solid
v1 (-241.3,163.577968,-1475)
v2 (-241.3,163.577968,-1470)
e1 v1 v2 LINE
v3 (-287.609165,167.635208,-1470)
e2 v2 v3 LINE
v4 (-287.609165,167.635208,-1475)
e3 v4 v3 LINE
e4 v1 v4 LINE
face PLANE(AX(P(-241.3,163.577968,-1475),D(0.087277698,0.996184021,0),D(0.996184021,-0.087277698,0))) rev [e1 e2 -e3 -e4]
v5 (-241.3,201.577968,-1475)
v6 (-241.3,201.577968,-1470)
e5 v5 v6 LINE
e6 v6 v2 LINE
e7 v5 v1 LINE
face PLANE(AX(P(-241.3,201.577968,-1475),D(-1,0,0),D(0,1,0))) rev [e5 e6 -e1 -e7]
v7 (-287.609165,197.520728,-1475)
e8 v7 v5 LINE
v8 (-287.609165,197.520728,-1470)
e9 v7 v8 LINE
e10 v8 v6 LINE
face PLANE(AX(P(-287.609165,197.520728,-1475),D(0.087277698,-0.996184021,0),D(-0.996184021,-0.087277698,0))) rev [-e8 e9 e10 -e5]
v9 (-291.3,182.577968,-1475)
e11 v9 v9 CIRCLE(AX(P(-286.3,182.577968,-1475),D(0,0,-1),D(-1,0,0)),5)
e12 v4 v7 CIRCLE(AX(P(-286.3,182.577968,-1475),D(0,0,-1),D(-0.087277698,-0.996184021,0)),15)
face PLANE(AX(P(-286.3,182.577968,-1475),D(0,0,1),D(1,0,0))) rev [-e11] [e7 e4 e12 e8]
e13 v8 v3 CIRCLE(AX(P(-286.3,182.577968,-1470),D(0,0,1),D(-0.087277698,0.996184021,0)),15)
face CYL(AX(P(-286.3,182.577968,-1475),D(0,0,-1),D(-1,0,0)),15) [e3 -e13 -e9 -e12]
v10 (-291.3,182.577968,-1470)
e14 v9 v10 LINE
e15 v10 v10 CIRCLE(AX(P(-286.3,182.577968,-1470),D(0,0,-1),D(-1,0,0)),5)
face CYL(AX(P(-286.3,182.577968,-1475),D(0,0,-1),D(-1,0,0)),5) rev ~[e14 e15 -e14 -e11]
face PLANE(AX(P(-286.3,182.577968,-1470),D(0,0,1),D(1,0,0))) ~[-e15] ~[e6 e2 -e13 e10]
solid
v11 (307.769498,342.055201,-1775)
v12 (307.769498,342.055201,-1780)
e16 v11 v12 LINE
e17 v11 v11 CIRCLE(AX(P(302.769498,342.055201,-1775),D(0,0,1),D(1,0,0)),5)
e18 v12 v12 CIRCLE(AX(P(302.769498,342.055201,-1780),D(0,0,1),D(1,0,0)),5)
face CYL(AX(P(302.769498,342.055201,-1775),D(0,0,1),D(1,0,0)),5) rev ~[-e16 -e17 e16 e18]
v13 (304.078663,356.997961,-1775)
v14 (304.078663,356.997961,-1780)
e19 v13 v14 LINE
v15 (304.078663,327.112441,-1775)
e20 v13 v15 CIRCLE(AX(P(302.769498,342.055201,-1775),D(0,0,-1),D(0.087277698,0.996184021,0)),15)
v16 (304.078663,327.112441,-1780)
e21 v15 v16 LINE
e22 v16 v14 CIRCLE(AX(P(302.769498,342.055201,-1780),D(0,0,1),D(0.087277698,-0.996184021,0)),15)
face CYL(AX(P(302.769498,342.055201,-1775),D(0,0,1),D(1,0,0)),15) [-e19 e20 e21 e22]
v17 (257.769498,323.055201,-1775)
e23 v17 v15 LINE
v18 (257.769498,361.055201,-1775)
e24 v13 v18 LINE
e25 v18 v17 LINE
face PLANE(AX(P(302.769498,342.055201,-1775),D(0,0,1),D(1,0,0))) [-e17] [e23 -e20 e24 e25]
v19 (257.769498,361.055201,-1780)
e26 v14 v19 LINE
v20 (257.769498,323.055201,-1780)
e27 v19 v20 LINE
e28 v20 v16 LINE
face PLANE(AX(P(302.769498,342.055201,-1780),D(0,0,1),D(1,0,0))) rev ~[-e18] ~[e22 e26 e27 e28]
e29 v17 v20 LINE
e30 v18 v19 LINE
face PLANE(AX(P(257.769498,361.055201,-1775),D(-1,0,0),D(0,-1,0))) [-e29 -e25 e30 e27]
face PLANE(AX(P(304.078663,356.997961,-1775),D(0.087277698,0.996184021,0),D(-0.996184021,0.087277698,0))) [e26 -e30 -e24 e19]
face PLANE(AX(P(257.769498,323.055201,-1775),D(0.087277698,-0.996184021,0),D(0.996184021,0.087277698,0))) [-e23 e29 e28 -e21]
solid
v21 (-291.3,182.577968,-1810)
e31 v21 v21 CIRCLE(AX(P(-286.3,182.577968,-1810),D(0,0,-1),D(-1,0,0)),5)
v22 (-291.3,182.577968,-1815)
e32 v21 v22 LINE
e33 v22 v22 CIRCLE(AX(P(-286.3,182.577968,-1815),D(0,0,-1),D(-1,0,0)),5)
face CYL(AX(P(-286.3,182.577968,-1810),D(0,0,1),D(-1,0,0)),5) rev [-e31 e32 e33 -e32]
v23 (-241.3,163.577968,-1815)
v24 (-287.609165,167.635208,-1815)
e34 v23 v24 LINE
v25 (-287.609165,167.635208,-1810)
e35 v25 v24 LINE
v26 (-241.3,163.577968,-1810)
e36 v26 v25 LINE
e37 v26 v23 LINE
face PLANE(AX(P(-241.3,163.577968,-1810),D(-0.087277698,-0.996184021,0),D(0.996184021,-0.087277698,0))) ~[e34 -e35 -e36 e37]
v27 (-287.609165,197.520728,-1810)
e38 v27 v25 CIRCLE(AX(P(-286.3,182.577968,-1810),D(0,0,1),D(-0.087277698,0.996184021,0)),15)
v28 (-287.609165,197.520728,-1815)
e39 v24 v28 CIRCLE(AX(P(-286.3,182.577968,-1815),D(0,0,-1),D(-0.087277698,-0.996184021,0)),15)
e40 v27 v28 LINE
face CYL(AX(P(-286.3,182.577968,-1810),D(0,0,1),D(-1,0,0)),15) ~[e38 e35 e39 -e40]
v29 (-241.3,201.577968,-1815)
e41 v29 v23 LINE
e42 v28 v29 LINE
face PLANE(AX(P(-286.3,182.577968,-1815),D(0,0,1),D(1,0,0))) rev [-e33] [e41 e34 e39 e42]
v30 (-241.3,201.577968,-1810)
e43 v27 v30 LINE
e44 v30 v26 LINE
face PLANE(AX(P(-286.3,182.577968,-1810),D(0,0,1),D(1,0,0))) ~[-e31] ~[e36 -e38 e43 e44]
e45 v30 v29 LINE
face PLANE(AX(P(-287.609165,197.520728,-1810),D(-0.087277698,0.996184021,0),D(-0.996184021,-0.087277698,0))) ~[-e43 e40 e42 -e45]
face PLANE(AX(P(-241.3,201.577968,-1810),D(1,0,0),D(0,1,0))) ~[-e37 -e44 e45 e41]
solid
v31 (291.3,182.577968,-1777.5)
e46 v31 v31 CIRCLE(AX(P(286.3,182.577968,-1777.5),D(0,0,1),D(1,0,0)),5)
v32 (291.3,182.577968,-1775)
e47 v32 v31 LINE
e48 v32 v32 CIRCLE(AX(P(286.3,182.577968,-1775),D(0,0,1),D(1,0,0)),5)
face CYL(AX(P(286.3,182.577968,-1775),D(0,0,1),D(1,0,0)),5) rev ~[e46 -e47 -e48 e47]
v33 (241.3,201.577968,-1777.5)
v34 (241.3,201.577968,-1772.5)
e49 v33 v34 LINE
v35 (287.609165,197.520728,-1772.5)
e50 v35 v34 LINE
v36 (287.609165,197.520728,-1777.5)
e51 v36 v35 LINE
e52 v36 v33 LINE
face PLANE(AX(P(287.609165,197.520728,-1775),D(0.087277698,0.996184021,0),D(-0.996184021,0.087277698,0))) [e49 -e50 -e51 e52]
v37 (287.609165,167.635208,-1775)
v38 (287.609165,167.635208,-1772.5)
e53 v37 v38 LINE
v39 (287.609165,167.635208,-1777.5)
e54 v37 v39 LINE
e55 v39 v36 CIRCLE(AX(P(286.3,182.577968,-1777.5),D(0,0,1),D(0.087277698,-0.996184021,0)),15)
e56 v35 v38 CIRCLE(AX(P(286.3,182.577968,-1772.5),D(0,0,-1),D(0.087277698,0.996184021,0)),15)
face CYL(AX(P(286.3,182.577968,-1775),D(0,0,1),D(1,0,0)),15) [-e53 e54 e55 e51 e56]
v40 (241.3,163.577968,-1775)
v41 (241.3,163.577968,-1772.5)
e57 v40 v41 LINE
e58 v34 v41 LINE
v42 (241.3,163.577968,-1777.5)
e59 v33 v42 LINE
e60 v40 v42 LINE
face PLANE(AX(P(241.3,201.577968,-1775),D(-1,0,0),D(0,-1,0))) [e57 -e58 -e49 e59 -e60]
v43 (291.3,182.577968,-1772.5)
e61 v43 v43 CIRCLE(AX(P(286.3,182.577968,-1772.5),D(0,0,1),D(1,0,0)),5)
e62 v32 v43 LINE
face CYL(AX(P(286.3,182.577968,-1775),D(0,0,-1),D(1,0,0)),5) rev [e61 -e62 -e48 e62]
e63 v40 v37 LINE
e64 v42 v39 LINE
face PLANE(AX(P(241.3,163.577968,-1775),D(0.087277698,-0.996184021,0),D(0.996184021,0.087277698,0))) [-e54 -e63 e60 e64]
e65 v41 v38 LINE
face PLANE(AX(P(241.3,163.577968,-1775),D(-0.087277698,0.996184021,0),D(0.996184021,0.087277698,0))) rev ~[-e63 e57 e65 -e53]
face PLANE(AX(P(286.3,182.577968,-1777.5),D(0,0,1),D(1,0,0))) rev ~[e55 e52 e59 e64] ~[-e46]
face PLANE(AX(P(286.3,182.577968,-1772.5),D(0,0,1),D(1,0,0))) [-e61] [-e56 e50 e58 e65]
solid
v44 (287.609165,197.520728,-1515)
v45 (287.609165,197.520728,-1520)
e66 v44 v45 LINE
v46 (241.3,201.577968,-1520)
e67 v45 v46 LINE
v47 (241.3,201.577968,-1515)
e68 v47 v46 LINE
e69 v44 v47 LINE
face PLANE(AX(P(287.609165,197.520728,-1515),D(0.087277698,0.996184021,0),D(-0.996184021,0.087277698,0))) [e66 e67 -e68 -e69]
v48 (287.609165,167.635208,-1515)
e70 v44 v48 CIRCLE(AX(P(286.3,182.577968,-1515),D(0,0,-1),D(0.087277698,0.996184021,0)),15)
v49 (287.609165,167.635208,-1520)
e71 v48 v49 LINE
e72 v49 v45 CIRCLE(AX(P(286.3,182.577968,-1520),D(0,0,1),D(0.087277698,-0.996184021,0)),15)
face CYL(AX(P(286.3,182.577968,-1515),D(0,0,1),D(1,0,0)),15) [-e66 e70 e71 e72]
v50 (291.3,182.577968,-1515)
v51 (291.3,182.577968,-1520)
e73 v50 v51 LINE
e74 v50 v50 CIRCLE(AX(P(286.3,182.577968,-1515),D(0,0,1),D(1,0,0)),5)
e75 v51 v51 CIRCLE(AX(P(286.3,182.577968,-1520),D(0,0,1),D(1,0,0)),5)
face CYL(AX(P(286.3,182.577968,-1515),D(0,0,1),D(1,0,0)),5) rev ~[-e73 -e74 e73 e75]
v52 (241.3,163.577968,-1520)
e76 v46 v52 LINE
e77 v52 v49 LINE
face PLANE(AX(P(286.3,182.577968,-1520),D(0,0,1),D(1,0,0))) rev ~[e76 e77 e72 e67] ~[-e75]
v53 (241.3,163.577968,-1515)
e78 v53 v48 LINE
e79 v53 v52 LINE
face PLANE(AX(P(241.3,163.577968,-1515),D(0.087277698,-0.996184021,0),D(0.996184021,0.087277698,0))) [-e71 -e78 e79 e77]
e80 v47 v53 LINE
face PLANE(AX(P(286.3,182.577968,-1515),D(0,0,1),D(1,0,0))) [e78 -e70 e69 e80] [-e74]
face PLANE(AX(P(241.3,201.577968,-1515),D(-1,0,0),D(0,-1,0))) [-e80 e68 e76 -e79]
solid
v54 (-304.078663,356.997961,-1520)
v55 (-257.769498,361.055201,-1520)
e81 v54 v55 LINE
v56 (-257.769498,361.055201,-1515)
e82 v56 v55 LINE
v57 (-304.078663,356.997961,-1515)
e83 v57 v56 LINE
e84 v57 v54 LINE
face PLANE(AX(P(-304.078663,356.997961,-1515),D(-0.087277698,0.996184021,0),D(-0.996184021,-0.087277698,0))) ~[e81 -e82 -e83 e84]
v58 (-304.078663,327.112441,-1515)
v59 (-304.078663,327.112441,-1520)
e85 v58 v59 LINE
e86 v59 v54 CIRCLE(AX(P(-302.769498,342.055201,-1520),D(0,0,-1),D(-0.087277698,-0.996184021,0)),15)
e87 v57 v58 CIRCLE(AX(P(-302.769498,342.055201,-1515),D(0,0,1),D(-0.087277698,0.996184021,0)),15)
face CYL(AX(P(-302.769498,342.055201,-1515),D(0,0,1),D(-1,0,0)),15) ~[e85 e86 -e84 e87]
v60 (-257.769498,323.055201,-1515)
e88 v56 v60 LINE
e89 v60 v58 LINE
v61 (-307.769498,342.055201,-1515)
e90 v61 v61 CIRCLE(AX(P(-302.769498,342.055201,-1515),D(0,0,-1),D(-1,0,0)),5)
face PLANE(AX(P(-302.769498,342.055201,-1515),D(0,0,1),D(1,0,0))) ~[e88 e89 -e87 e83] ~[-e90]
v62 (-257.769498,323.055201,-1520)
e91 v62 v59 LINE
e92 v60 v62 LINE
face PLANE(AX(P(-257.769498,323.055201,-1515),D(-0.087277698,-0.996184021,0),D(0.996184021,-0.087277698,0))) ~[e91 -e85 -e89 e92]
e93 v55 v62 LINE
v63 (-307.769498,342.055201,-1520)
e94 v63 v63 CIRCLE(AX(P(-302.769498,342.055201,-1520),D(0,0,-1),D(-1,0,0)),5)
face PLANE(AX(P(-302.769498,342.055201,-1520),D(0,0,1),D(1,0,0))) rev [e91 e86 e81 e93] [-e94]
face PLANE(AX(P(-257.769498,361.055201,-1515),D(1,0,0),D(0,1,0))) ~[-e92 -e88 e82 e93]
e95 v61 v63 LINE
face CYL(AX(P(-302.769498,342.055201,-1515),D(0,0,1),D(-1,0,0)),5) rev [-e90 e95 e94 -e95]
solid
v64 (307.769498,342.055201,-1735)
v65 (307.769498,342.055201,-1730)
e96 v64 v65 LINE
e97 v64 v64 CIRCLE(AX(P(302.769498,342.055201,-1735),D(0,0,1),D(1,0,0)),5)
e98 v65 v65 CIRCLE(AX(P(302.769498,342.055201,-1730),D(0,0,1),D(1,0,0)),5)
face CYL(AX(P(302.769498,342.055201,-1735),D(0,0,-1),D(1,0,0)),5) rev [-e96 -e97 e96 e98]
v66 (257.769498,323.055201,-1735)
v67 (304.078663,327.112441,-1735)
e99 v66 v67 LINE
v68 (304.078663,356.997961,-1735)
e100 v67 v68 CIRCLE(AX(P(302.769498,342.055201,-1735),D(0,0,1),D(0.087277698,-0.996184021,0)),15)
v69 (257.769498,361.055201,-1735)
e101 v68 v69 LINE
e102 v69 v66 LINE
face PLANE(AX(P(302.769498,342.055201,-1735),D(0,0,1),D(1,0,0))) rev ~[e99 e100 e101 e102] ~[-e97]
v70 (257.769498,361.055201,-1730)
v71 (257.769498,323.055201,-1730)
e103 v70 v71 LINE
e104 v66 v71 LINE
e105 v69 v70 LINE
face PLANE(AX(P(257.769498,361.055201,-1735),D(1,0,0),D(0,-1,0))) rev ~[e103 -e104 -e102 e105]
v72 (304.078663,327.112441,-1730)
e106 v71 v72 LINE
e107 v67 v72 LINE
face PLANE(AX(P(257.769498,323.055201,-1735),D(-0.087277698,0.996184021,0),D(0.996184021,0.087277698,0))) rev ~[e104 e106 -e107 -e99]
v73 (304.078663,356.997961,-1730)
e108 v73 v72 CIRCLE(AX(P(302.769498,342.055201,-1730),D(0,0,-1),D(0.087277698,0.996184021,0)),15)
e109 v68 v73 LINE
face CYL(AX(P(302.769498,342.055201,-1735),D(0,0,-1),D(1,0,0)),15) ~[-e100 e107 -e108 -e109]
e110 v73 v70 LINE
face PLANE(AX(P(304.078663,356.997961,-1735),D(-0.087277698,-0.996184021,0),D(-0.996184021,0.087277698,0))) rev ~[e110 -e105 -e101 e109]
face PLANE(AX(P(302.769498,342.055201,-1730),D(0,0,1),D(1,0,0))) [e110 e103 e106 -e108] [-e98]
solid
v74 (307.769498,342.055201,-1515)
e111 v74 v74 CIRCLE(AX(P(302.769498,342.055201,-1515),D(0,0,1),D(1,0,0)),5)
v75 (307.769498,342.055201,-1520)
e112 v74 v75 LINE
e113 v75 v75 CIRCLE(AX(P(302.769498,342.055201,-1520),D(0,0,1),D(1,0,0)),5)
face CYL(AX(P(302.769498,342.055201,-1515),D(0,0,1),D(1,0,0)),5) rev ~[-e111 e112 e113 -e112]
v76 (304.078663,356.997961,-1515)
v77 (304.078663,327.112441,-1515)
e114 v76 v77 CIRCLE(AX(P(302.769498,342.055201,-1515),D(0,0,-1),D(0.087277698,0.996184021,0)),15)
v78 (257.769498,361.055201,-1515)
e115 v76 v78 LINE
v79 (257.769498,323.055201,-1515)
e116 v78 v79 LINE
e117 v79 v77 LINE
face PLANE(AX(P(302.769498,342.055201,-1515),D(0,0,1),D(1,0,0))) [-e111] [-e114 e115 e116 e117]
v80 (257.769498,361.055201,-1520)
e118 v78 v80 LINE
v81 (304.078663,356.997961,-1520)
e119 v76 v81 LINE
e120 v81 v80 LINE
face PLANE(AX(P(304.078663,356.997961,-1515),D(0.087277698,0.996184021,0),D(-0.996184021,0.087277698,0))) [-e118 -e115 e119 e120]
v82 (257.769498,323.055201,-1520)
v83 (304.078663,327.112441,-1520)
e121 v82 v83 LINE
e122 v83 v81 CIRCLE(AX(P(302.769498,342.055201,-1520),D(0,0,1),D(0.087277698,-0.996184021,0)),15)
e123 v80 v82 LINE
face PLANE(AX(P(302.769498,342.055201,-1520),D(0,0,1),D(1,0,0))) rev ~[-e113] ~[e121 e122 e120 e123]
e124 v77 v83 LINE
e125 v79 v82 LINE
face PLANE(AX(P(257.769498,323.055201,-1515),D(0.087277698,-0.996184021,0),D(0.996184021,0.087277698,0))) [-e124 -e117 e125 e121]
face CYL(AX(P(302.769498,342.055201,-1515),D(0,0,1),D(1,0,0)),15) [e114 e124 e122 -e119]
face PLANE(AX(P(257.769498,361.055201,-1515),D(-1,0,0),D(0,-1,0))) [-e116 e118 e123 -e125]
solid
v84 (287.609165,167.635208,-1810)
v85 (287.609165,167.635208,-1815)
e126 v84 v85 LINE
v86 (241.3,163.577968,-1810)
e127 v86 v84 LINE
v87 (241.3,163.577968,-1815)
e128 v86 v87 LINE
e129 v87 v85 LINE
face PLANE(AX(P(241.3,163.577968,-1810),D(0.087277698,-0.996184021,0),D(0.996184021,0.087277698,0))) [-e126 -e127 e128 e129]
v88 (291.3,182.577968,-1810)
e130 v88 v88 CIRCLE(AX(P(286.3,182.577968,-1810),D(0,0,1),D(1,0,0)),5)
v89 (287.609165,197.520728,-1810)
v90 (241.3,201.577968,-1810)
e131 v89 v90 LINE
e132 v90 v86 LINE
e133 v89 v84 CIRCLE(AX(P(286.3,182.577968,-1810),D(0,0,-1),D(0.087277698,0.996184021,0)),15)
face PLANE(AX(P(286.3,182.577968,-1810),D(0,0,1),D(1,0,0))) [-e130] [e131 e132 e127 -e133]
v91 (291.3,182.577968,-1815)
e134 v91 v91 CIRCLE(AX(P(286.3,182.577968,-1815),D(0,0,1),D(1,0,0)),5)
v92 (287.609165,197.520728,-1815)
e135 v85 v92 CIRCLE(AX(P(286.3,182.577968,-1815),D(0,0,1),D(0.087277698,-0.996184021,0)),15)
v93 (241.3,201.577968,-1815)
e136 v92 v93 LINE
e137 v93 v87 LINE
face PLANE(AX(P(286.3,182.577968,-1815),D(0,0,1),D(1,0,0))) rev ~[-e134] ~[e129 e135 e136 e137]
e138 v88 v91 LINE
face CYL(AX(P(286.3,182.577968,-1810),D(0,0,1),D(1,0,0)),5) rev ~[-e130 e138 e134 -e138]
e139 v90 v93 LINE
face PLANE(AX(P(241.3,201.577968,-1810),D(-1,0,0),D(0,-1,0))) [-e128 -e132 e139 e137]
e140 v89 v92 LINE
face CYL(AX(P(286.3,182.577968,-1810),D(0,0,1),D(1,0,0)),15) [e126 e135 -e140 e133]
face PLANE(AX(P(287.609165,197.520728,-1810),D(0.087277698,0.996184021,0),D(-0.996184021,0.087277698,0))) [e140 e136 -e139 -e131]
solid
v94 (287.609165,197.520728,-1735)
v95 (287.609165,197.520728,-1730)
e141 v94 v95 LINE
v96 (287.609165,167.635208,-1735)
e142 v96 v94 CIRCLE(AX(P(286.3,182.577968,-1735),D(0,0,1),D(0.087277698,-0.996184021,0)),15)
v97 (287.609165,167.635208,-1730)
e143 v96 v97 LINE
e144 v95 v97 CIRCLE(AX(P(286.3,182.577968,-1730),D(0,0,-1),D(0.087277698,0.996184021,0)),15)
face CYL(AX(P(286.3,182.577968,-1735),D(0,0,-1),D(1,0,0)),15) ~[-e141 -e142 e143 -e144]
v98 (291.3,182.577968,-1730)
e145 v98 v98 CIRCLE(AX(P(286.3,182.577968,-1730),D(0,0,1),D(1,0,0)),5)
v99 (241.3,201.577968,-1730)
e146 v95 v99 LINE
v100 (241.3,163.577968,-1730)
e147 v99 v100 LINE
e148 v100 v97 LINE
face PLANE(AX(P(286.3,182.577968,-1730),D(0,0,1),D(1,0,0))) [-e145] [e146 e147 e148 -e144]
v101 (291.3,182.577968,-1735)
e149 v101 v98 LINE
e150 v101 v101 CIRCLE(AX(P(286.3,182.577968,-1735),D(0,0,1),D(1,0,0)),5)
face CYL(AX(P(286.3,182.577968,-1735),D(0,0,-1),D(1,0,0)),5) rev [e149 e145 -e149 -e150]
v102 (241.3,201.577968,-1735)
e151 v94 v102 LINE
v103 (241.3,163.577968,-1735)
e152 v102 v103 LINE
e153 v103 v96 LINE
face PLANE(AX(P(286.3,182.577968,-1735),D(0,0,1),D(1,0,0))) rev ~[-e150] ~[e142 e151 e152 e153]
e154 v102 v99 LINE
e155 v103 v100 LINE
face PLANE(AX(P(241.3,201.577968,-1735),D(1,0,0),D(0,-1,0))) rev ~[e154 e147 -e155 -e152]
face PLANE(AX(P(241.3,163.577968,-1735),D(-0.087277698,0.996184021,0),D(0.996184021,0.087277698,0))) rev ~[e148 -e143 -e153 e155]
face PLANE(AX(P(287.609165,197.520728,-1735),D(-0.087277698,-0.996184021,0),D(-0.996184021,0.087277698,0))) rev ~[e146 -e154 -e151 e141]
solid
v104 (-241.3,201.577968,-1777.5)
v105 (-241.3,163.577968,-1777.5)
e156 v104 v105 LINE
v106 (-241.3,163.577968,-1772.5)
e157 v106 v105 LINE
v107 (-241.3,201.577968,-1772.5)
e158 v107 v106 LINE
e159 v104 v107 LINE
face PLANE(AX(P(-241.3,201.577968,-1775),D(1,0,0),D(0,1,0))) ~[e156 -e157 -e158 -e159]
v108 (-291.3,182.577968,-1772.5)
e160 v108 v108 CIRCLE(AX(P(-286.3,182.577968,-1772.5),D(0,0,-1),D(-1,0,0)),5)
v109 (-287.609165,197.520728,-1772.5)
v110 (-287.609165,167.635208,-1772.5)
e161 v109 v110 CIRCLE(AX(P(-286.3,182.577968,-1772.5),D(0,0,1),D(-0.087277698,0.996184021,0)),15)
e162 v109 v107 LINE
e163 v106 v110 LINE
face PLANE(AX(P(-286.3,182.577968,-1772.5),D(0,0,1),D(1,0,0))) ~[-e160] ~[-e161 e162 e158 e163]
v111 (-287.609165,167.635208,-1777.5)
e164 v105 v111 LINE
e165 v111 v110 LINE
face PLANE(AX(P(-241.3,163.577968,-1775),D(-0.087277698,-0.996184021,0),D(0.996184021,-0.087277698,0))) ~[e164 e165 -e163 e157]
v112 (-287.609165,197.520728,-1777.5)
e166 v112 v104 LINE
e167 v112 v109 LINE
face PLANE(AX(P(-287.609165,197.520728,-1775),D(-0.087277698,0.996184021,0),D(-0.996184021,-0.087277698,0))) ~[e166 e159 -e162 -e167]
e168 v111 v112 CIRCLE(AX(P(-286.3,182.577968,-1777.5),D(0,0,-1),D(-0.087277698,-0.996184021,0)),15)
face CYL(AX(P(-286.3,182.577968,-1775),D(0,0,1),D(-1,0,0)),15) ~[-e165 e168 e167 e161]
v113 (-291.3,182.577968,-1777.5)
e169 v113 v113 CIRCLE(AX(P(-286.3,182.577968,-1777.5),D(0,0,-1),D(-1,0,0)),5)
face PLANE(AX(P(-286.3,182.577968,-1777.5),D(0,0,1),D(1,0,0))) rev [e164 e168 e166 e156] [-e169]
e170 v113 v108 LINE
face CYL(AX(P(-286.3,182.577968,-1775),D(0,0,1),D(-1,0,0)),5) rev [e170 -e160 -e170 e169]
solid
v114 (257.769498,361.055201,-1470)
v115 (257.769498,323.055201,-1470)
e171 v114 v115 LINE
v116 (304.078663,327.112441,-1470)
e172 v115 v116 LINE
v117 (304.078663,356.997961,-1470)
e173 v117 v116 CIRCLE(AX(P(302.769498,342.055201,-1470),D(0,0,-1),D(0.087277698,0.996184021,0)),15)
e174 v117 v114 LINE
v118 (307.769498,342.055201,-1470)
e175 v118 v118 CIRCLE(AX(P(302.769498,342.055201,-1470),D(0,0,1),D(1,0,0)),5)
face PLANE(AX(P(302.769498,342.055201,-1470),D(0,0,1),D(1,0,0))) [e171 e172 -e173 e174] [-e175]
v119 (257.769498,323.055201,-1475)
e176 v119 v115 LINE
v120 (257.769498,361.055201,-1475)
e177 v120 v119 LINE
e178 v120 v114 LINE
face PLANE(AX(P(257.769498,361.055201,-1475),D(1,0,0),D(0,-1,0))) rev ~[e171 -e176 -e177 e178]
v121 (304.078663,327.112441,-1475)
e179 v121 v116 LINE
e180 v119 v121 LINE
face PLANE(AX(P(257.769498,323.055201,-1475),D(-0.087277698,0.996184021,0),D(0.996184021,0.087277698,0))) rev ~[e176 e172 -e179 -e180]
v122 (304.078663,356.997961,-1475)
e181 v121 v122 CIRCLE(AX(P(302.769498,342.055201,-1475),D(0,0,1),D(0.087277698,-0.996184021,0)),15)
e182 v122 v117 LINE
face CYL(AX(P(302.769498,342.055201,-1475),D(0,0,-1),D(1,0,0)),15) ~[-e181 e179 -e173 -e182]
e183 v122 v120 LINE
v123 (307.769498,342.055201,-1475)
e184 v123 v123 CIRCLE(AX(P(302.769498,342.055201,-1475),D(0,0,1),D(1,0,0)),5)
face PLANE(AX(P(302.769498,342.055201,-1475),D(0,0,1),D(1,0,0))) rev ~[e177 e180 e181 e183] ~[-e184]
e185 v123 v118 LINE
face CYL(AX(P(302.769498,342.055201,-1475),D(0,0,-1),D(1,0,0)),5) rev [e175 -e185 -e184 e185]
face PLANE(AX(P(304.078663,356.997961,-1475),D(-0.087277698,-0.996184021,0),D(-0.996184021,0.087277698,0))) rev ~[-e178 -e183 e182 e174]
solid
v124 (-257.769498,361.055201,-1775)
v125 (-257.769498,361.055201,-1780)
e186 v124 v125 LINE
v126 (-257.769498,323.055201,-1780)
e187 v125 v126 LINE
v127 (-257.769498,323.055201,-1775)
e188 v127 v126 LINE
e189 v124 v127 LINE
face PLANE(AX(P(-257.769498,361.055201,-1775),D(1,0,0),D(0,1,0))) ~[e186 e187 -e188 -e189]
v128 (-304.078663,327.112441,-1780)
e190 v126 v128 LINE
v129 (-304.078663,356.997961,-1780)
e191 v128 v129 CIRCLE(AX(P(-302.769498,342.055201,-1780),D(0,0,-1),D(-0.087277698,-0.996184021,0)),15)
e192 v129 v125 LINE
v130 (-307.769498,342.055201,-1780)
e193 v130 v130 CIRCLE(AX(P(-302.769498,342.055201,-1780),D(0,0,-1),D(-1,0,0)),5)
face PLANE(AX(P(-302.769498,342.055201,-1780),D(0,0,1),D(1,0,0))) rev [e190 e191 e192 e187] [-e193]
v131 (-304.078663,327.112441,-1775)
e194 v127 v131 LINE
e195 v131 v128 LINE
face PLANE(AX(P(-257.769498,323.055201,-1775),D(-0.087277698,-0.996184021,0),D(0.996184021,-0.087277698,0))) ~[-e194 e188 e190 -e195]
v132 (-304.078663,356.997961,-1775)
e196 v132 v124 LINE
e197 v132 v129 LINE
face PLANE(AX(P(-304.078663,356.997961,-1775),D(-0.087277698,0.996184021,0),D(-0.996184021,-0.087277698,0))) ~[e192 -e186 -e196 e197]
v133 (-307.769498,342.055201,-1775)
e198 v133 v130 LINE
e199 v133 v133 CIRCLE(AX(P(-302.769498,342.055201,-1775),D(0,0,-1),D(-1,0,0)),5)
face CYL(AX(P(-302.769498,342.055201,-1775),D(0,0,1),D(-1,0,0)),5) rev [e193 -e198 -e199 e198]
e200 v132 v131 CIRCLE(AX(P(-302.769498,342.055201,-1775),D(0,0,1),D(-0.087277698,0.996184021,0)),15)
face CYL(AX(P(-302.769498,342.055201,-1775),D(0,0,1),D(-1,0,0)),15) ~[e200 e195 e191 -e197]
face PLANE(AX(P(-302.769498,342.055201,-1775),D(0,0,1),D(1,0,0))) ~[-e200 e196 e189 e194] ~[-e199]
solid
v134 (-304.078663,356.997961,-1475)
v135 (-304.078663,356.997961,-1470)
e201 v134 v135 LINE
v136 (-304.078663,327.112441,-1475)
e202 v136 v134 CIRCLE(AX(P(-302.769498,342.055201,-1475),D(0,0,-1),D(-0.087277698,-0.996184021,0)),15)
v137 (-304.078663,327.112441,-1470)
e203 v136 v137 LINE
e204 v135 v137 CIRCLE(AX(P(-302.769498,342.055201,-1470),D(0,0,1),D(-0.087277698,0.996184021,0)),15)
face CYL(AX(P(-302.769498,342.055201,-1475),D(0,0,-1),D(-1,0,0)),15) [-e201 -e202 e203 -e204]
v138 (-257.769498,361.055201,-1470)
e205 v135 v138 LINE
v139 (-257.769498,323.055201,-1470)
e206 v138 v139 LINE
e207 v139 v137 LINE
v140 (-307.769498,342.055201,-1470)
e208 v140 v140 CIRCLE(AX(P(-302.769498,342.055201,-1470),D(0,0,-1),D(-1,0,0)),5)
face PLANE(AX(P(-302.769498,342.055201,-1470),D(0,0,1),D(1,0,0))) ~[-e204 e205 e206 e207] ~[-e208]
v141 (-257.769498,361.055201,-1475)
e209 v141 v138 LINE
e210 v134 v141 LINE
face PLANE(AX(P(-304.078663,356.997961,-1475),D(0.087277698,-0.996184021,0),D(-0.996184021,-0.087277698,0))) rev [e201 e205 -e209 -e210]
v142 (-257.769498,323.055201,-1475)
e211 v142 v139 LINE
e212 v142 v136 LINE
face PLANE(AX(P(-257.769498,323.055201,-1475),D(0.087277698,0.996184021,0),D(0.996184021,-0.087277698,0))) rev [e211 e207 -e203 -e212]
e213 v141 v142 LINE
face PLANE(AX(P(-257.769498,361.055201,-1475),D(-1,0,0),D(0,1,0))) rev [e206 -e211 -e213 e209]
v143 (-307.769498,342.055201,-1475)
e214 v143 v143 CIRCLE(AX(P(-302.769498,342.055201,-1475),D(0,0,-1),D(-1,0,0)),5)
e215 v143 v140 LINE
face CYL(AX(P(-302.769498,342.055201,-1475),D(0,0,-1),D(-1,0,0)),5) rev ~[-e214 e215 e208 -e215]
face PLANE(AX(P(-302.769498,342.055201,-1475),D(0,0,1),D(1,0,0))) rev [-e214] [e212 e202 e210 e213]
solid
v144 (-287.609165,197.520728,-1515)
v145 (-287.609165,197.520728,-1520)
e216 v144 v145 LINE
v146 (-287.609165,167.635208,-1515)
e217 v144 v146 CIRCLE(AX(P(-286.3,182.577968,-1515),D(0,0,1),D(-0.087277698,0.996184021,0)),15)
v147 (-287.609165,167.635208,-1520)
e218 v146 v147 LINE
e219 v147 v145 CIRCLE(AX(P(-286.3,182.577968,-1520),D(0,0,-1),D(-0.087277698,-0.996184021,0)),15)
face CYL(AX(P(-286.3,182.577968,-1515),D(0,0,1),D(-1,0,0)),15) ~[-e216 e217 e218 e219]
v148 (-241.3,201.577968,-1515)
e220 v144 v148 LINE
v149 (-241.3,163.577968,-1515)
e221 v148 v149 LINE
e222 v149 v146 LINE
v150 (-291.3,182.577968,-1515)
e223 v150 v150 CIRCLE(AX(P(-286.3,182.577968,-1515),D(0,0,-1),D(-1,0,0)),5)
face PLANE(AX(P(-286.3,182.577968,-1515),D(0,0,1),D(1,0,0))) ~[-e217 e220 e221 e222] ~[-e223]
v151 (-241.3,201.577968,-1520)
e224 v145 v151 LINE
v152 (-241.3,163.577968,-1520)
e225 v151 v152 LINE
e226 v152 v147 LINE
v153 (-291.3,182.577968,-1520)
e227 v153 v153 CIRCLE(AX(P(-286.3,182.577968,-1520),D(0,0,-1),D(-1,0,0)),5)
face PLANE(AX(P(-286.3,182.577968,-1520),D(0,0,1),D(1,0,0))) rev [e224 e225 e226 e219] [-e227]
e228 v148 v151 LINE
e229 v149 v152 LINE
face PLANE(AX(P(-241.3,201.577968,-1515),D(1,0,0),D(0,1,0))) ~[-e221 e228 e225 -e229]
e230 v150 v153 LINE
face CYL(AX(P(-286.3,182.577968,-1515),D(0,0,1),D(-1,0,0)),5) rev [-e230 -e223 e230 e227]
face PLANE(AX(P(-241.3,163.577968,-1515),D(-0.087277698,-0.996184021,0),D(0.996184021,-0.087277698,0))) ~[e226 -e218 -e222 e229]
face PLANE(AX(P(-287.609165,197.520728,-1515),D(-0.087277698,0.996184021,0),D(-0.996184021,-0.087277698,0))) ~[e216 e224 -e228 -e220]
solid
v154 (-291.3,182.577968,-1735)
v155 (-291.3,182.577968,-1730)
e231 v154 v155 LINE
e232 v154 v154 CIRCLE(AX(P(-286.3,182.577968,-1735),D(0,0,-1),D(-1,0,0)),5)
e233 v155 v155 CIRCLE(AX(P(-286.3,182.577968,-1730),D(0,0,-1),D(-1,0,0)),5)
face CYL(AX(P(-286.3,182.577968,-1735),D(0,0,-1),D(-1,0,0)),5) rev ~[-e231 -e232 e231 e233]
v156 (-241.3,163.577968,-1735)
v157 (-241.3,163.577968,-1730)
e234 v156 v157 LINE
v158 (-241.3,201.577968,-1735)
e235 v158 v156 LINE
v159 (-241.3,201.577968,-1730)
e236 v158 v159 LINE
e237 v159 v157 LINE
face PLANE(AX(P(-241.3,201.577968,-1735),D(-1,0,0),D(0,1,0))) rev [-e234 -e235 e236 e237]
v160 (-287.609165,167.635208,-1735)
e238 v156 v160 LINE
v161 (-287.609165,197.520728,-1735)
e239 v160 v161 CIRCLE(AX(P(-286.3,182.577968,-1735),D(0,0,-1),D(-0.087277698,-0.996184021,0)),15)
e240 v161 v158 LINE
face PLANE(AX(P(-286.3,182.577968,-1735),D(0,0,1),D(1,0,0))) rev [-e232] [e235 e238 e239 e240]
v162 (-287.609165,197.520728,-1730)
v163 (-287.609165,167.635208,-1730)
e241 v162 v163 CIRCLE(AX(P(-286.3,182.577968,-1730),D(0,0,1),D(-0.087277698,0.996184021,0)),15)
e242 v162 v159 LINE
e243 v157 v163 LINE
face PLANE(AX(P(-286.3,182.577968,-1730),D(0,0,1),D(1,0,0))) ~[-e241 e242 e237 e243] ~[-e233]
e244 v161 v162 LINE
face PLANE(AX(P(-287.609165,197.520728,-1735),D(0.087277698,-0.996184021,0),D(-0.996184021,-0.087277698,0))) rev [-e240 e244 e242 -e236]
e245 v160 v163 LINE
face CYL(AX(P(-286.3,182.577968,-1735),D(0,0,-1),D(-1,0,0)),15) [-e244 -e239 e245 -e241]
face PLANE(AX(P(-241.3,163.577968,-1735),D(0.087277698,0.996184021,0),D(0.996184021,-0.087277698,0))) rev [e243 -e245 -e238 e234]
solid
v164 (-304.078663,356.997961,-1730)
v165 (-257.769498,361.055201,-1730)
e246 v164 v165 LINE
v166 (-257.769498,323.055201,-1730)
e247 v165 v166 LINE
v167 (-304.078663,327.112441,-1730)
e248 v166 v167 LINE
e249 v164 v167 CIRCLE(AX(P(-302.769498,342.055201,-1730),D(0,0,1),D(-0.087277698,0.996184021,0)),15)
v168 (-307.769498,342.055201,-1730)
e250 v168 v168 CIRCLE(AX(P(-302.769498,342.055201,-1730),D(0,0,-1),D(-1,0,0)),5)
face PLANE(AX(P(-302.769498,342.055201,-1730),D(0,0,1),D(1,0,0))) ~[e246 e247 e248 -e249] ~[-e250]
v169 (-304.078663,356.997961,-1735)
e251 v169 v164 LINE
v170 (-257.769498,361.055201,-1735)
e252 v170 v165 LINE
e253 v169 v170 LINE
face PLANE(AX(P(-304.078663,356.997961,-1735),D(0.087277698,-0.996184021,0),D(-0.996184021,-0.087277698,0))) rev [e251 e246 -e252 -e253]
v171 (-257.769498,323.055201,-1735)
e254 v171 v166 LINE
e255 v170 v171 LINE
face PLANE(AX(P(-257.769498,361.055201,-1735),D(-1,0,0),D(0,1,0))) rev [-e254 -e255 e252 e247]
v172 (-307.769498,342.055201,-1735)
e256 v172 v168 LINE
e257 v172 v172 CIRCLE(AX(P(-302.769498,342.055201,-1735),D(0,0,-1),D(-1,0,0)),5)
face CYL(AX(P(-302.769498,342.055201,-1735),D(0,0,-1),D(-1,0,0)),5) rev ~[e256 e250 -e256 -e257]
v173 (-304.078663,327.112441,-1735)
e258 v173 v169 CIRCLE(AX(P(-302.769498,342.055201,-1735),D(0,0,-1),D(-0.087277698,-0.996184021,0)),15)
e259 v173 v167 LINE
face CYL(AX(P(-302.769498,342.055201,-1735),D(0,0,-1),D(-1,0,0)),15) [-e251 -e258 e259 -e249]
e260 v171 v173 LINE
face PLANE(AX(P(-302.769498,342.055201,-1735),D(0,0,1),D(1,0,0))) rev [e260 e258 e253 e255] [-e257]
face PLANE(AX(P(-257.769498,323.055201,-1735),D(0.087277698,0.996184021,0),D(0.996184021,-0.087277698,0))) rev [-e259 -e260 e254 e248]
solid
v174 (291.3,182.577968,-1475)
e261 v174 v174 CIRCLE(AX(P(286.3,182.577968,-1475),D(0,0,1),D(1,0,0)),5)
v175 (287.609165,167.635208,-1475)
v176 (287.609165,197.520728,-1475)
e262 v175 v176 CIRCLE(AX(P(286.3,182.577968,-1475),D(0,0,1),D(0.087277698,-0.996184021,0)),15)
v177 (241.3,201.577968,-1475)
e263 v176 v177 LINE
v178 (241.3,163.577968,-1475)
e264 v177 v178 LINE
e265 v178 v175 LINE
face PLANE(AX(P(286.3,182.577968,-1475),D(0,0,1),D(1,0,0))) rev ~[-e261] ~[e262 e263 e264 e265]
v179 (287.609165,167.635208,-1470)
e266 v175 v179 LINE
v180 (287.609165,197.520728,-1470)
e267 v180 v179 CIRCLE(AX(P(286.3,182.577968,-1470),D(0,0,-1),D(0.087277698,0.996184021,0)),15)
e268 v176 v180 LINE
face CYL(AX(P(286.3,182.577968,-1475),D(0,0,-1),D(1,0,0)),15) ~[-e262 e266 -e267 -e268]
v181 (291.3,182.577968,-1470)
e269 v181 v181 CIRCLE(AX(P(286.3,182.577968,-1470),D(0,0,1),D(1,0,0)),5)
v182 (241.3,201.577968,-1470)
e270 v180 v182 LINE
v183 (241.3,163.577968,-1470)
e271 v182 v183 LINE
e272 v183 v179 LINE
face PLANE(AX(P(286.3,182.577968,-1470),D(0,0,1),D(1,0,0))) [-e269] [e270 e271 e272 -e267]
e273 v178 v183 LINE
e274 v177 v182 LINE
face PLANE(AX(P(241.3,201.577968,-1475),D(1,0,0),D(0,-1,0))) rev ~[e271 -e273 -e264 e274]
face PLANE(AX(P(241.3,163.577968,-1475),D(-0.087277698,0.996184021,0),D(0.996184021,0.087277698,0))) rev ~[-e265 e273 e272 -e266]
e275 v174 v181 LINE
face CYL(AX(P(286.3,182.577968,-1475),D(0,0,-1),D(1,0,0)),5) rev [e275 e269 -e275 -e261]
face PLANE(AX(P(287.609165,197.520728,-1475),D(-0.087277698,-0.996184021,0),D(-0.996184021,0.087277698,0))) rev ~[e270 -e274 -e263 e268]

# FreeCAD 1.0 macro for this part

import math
import FreeCAD as App
import Part
import Sketcher
from FreeCAD import Vector

doc = App.newDocument("Part")
body = doc.addObject("PartDesign::Body", "Body")

# Sketch on XY plane
sketch1 = body.newObject("Sketcher::SketchObject", "Sketch")
sketch1.AttachmentSupport = (doc.getObject("XY_Plane"), [""])
sketch1.MapMode = "FlatFace"
sketch1.AttachmentOffset = App.Placement(Vector(0, 0, -1475), App.Rotation())
sketch1.addGeometry(Part.LineSegment(Vector(304, 357, 0), Vector(258, 361, 0)), False)
sketch1.addGeometry(Part.LineSegment(Vector(258, 361, 0), Vector(258, 323, 0)), False)
sketch1.addGeometry(Part.LineSegment(Vector(258, 323, 0), Vector(304, 327, 0)), False)
sketch1.addGeometry(Part.ArcOfCircle(Part.Circle(Vector(303, 342, 0), Vector(0, 0, 1), 15), math.radians(-85), math.radians(85)), False)
sketch1.addGeometry(Part.Circle(Vector(303, 342, 0), Vector(0, 0, 1), 5), False)
sketch1.addConstraint(Sketcher.Constraint("Coincident", 0, 2, 1, 1))
sketch1.addConstraint(Sketcher.Constraint("Coincident", 1, 2, 2, 1))
sketch1.addConstraint(Sketcher.Constraint("Tangent", 2, 2, 3, 1))
sketch1.addConstraint(Sketcher.Constraint("Tangent", 3, 2, 0, 1))
sketch1.addConstraint(Sketcher.Constraint("Vertical", 1))
sketch1.addConstraint(Sketcher.Constraint("Coincident", 4, 3, 3, 3))
sketch1.addConstraint(Sketcher.Constraint("Vertical", 2, 2, 3, 2))
sketch1.addConstraint(Sketcher.Constraint("Diameter", 4, 10.0))
sketch1.addConstraint(Sketcher.Constraint("Radius", 3, 15.0))
sketch1.addConstraint(Sketcher.Constraint("DistanceY", 1, 2, 1, 1, 38.0))
sketch1.addConstraint(Sketcher.Constraint("DistanceX", 0, 2, 3, 3, 45.0))
sketch1.addConstraint(Sketcher.Constraint("DistanceX", -1, 1, 3, 3, 302.769498))
sketch1.addConstraint(Sketcher.Constraint("DistanceY", -1, 1, 3, 3, 342.055201))
pad1 = body.newObject("PartDesign::Pad", "Pad")
pad1.Profile = sketch1
pad1.Length = 5
body2 = doc.addObject("PartDesign::Body", "Body001")

# Sketch on XY plane
sketch2 = body2.newObject("Sketcher::SketchObject", "Sketch001")
sketch2.AttachmentSupport = (doc.getObject("XY_Plane001"), [""])
sketch2.MapMode = "FlatFace"
sketch2.AttachmentOffset = App.Placement(Vector(0, 0, -1515), App.Rotation())
sketch2.addGeometry(Part.LineSegment(Vector(304, 357, 0), Vector(258, 361, 0)), False)
sketch2.addGeometry(Part.LineSegment(Vector(258, 361, 0), Vector(258, 323, 0)), False)
sketch2.addGeometry(Part.LineSegment(Vector(258, 323, 0), Vector(304, 327, 0)), False)
sketch2.addGeometry(Part.ArcOfCircle(Part.Circle(Vector(303, 342, 0), Vector(0, 0, 1), 15), math.radians(-85), math.radians(85)), False)
sketch2.addGeometry(Part.Circle(Vector(303, 342, 0), Vector(0, 0, 1), 5), False)
sketch2.addConstraint(Sketcher.Constraint("Coincident", 0, 2, 1, 1))
sketch2.addConstraint(Sketcher.Constraint("Coincident", 1, 2, 2, 1))
sketch2.addConstraint(Sketcher.Constraint("Tangent", 2, 2, 3, 1))
sketch2.addConstraint(Sketcher.Constraint("Tangent", 3, 2, 0, 1))
sketch2.addConstraint(Sketcher.Constraint("Vertical", 1))
sketch2.addConstraint(Sketcher.Constraint("Coincident", 4, 3, 3, 3))
sketch2.addConstraint(Sketcher.Constraint("Vertical", 2, 2, 3, 2))
sketch2.addConstraint(Sketcher.Constraint("Diameter", 4, 10.0))
sketch2.addConstraint(Sketcher.Constraint("Radius", 3, 15.0))
sketch2.addConstraint(Sketcher.Constraint("DistanceY", 1, 2, 1, 1, 38.0))
sketch2.addConstraint(Sketcher.Constraint("DistanceX", 0, 2, 3, 3, 45.0))
sketch2.addConstraint(Sketcher.Constraint("DistanceX", -1, 1, 3, 3, 302.769498))
sketch2.addConstraint(Sketcher.Constraint("DistanceY", -1, 1, 3, 3, 342.055201))
pad2 = body2.newObject("PartDesign::Pad", "Pad001")
pad2.Profile = sketch2
pad2.Length = 5
pad2.Reversed = True
body3 = doc.addObject("PartDesign::Body", "Body002")

# Sketch on XY plane
sketch3 = body3.newObject("Sketcher::SketchObject", "Sketch002")
sketch3.AttachmentSupport = (doc.getObject("XY_Plane002"), [""])
sketch3.MapMode = "FlatFace"
sketch3.AttachmentOffset = App.Placement(Vector(0, 0, -1775), App.Rotation())
sketch3.addGeometry(Part.LineSegment(Vector(304, 357, 0), Vector(258, 361, 0)), False)
sketch3.addGeometry(Part.LineSegment(Vector(258, 361, 0), Vector(258, 323, 0)), False)
sketch3.addGeometry(Part.LineSegment(Vector(258, 323, 0), Vector(304, 327, 0)), False)
sketch3.addGeometry(Part.ArcOfCircle(Part.Circle(Vector(303, 342, 0), Vector(0, 0, 1), 15), math.radians(-85), math.radians(85)), False)
sketch3.addGeometry(Part.Circle(Vector(303, 342, 0), Vector(0, 0, 1), 5), False)
sketch3.addConstraint(Sketcher.Constraint("Coincident", 0, 2, 1, 1))
sketch3.addConstraint(Sketcher.Constraint("Coincident", 1, 2, 2, 1))
sketch3.addConstraint(Sketcher.Constraint("Tangent", 2, 2, 3, 1))
sketch3.addConstraint(Sketcher.Constraint("Tangent", 3, 2, 0, 1))
sketch3.addConstraint(Sketcher.Constraint("Vertical", 1))
sketch3.addConstraint(Sketcher.Constraint("Coincident", 4, 3, 3, 3))
sketch3.addConstraint(Sketcher.Constraint("Vertical", 2, 2, 3, 2))
sketch3.addConstraint(Sketcher.Constraint("Diameter", 4, 10.0))
sketch3.addConstraint(Sketcher.Constraint("Radius", 3, 15.0))
sketch3.addConstraint(Sketcher.Constraint("DistanceY", 1, 2, 1, 1, 38.0))
sketch3.addConstraint(Sketcher.Constraint("DistanceX", 0, 2, 3, 3, 45.0))
sketch3.addConstraint(Sketcher.Constraint("DistanceX", -1, 1, 3, 3, 302.769498))
sketch3.addConstraint(Sketcher.Constraint("DistanceY", -1, 1, 3, 3, 342.055201))
pad3 = body3.newObject("PartDesign::Pad", "Pad002")
pad3.Profile = sketch3
pad3.Length = 5
pad3.Reversed = True
body4 = doc.addObject("PartDesign::Body", "Body003")

# Sketch on XY plane
sketch4 = body4.newObject("Sketcher::SketchObject", "Sketch003")
sketch4.AttachmentSupport = (doc.getObject("XY_Plane003"), [""])
sketch4.MapMode = "FlatFace"
sketch4.AttachmentOffset = App.Placement(Vector(0, 0, -1735), App.Rotation())
sketch4.addGeometry(Part.LineSegment(Vector(304, 357, 0), Vector(258, 361, 0)), False)
sketch4.addGeometry(Part.LineSegment(Vector(258, 361, 0), Vector(258, 323, 0)), False)
sketch4.addGeometry(Part.LineSegment(Vector(258, 323, 0), Vector(304, 327, 0)), False)
sketch4.addGeometry(Part.ArcOfCircle(Part.Circle(Vector(303, 342, 0), Vector(0, 0, 1), 15), math.radians(-85), math.radians(85)), False)
sketch4.addGeometry(Part.Circle(Vector(303, 342, 0), Vector(0, 0, 1), 5), False)
sketch4.addConstraint(Sketcher.Constraint("Coincident", 0, 2, 1, 1))
sketch4.addConstraint(Sketcher.Constraint("Coincident", 1, 2, 2, 1))
sketch4.addConstraint(Sketcher.Constraint("Tangent", 2, 2, 3, 1))
sketch4.addConstraint(Sketcher.Constraint("Tangent", 3, 2, 0, 1))
sketch4.addConstraint(Sketcher.Constraint("Vertical", 1))
sketch4.addConstraint(Sketcher.Constraint("Coincident", 4, 3, 3, 3))
sketch4.addConstraint(Sketcher.Constraint("Vertical", 2, 2, 3, 2))
sketch4.addConstraint(Sketcher.Constraint("Diameter", 4, 10.0))
sketch4.addConstraint(Sketcher.Constraint("Radius", 3, 15.0))
sketch4.addConstraint(Sketcher.Constraint("DistanceY", 1, 2, 1, 1, 38.0))
sketch4.addConstraint(Sketcher.Constraint("DistanceX", 0, 2, 3, 3, 45.0))
sketch4.addConstraint(Sketcher.Constraint("DistanceX", -1, 1, 3, 3, 302.769498))
sketch4.addConstraint(Sketcher.Constraint("DistanceY", -1, 1, 3, 3, 342.055201))
pad4 = body4.newObject("PartDesign::Pad", "Pad003")
pad4.Profile = sketch4
pad4.Length = 5
body5 = doc.addObject("PartDesign::Body", "Body004")

# Sketch on XY plane
sketch5 = body5.newObject("Sketcher::SketchObject", "Sketch004")
sketch5.AttachmentSupport = (doc.getObject("XY_Plane004"), [""])
sketch5.MapMode = "FlatFace"
sketch5.AttachmentOffset = App.Placement(Vector(0, 0, -1475), App.Rotation())
sketch5.addGeometry(Part.LineSegment(Vector(288, 198, 0), Vector(241, 202, 0)), False)
sketch5.addGeometry(Part.LineSegment(Vector(241, 202, 0), Vector(241, 164, 0)), False)
sketch5.addGeometry(Part.LineSegment(Vector(241, 164, 0), Vector(288, 168, 0)), False)
sketch5.addGeometry(Part.ArcOfCircle(Part.Circle(Vector(286, 183, 0), Vector(0, 0, 1), 15), math.radians(-85), math.radians(85)), False)
sketch5.addGeometry(Part.Circle(Vector(286, 183, 0), Vector(0, 0, 1), 5), False)
sketch5.addConstraint(Sketcher.Constraint("Coincident", 0, 2, 1, 1))
sketch5.addConstraint(Sketcher.Constraint("Coincident", 1, 2, 2, 1))
sketch5.addConstraint(Sketcher.Constraint("Tangent", 2, 2, 3, 1))
sketch5.addConstraint(Sketcher.Constraint("Tangent", 3, 2, 0, 1))
sketch5.addConstraint(Sketcher.Constraint("Vertical", 1))
sketch5.addConstraint(Sketcher.Constraint("Coincident", 4, 3, 3, 3))
sketch5.addConstraint(Sketcher.Constraint("Vertical", 2, 2, 3, 2))
sketch5.addConstraint(Sketcher.Constraint("Diameter", 4, 10.0))
sketch5.addConstraint(Sketcher.Constraint("Radius", 3, 15.0))
sketch5.addConstraint(Sketcher.Constraint("DistanceY", 1, 2, 1, 1, 38.0))
sketch5.addConstraint(Sketcher.Constraint("DistanceX", 0, 2, 3, 3, 45.0))
sketch5.addConstraint(Sketcher.Constraint("DistanceX", -1, 1, 3, 3, 286.3))
sketch5.addConstraint(Sketcher.Constraint("DistanceY", -1, 1, 3, 3, 182.577968))
pad5 = body5.newObject("PartDesign::Pad", "Pad004")
pad5.Profile = sketch5
pad5.Length = 5
body6 = doc.addObject("PartDesign::Body", "Body005")

# Sketch on XY plane
sketch6 = body6.newObject("Sketcher::SketchObject", "Sketch005")
sketch6.AttachmentSupport = (doc.getObject("XY_Plane005"), [""])
sketch6.MapMode = "FlatFace"
sketch6.AttachmentOffset = App.Placement(Vector(0, 0, -1515), App.Rotation())
sketch6.addGeometry(Part.LineSegment(Vector(241, 202, 0), Vector(241, 164, 0)), False)
sketch6.addGeometry(Part.LineSegment(Vector(241, 164, 0), Vector(288, 168, 0)), False)
sketch6.addGeometry(Part.ArcOfCircle(Part.Circle(Vector(286, 183, 0), Vector(0, 0, 1), 15), math.radians(-85), math.radians(85)), False)
sketch6.addGeometry(Part.LineSegment(Vector(288, 198, 0), Vector(241, 202, 0)), False)
sketch6.addGeometry(Part.Circle(Vector(286, 183, 0), Vector(0, 0, 1), 5), False)
sketch6.addConstraint(Sketcher.Constraint("Coincident", 0, 2, 1, 1))
sketch6.addConstraint(Sketcher.Constraint("Tangent", 1, 2, 2, 1))
sketch6.addConstraint(Sketcher.Constraint("Tangent", 2, 2, 3, 1))
sketch6.addConstraint(Sketcher.Constraint("Coincident", 3, 2, 0, 1))
sketch6.addConstraint(Sketcher.Constraint("Vertical", 0))
sketch6.addConstraint(Sketcher.Constraint("Coincident", 4, 3, 2, 3))
sketch6.addConstraint(Sketcher.Constraint("Vertical", 1, 2, 2, 2))
sketch6.addConstraint(Sketcher.Constraint("Diameter", 4, 10.0))
sketch6.addConstraint(Sketcher.Constraint("Radius", 2, 15.0))
sketch6.addConstraint(Sketcher.Constraint("DistanceY", 0, 2, 0, 1, 38.0))
sketch6.addConstraint(Sketcher.Constraint("DistanceX", 0, 2, 2, 3, 45.0))
sketch6.addConstraint(Sketcher.Constraint("DistanceX", -1, 1, 2, 3, 286.3))
sketch6.addConstraint(Sketcher.Constraint("DistanceY", -1, 1, 2, 3, 182.577968))
pad6 = body6.newObject("PartDesign::Pad", "Pad005")
pad6.Profile = sketch6
pad6.Length = 5
pad6.Reversed = True
body7 = doc.addObject("PartDesign::Body", "Body006")

# Sketch on XY plane
sketch7 = body7.newObject("Sketcher::SketchObject", "Sketch006")
sketch7.AttachmentSupport = (doc.getObject("XY_Plane006"), [""])
sketch7.MapMode = "FlatFace"
sketch7.AttachmentOffset = App.Placement(Vector(0, 0, -1735), App.Rotation())
sketch7.addGeometry(Part.LineSegment(Vector(288, 198, 0), Vector(241, 202, 0)), False)
sketch7.addGeometry(Part.LineSegment(Vector(241, 202, 0), Vector(241, 164, 0)), False)
sketch7.addGeometry(Part.LineSegment(Vector(241, 164, 0), Vector(288, 168, 0)), False)
sketch7.addGeometry(Part.ArcOfCircle(Part.Circle(Vector(286, 183, 0), Vector(0, 0, 1), 15), math.radians(-85), math.radians(85)), False)
sketch7.addGeometry(Part.Circle(Vector(286, 183, 0), Vector(0, 0, 1), 5), False)
sketch7.addConstraint(Sketcher.Constraint("Coincident", 0, 2, 1, 1))
sketch7.addConstraint(Sketcher.Constraint("Coincident", 1, 2, 2, 1))
sketch7.addConstraint(Sketcher.Constraint("Tangent", 2, 2, 3, 1))
sketch7.addConstraint(Sketcher.Constraint("Tangent", 3, 2, 0, 1))
sketch7.addConstraint(Sketcher.Constraint("Vertical", 1))
sketch7.addConstraint(Sketcher.Constraint("Coincident", 4, 3, 3, 3))
sketch7.addConstraint(Sketcher.Constraint("Vertical", 2, 2, 3, 2))
sketch7.addConstraint(Sketcher.Constraint("Diameter", 4, 10.0))
sketch7.addConstraint(Sketcher.Constraint("Radius", 3, 15.0))
sketch7.addConstraint(Sketcher.Constraint("DistanceY", 1, 2, 1, 1, 38.0))
sketch7.addConstraint(Sketcher.Constraint("DistanceX", 0, 2, 3, 3, 45.0))
sketch7.addConstraint(Sketcher.Constraint("DistanceX", -1, 1, 3, 3, 286.3))
sketch7.addConstraint(Sketcher.Constraint("DistanceY", -1, 1, 3, 3, 182.577968))
pad7 = body7.newObject("PartDesign::Pad", "Pad006")
pad7.Profile = sketch7
pad7.Length = 5
body8 = doc.addObject("PartDesign::Body", "Body007")

# Sketch on XY plane
sketch8 = body8.newObject("Sketcher::SketchObject", "Sketch007")
sketch8.AttachmentSupport = (doc.getObject("XY_Plane007"), [""])
sketch8.MapMode = "FlatFace"
sketch8.AttachmentOffset = App.Placement(Vector(0, 0, -1775), App.Rotation())
sketch8.addGeometry(Part.LineSegment(Vector(288, 198, 0), Vector(241, 202, 0)), False)
sketch8.addGeometry(Part.LineSegment(Vector(241, 202, 0), Vector(241, 164, 0)), False)
sketch8.addGeometry(Part.LineSegment(Vector(241, 164, 0), Vector(288, 168, 0)), False)
sketch8.addGeometry(Part.ArcOfCircle(Part.Circle(Vector(286, 183, 0), Vector(0, 0, 1), 15), math.radians(-85), math.radians(85)), False)
sketch8.addGeometry(Part.Circle(Vector(286, 183, 0), Vector(0, 0, 1), 5), False)
sketch8.addConstraint(Sketcher.Constraint("Coincident", 0, 2, 1, 1))
sketch8.addConstraint(Sketcher.Constraint("Coincident", 1, 2, 2, 1))
sketch8.addConstraint(Sketcher.Constraint("Tangent", 2, 2, 3, 1))
sketch8.addConstraint(Sketcher.Constraint("Tangent", 3, 2, 0, 1))
sketch8.addConstraint(Sketcher.Constraint("Vertical", 1))
sketch8.addConstraint(Sketcher.Constraint("Coincident", 4, 3, 3, 3))
sketch8.addConstraint(Sketcher.Constraint("Vertical", 2, 2, 3, 2))
sketch8.addConstraint(Sketcher.Constraint("Diameter", 4, 10.0))
sketch8.addConstraint(Sketcher.Constraint("Radius", 3, 15.0))
sketch8.addConstraint(Sketcher.Constraint("DistanceY", 1, 2, 1, 1, 38.0))
sketch8.addConstraint(Sketcher.Constraint("DistanceX", 0, 2, 3, 3, 45.0))
sketch8.addConstraint(Sketcher.Constraint("DistanceX", -1, 1, 3, 3, 286.3))
sketch8.addConstraint(Sketcher.Constraint("DistanceY", -1, 1, 3, 3, 182.577968))
pad8 = body8.newObject("PartDesign::Pad", "Pad007")
pad8.Profile = sketch8
pad8.Length = 5
pad8.Midplane = True
body9 = doc.addObject("PartDesign::Body", "Body008")

# Sketch on XY plane
sketch9 = body9.newObject("Sketcher::SketchObject", "Sketch008")
sketch9.AttachmentSupport = (doc.getObject("XY_Plane008"), [""])
sketch9.MapMode = "FlatFace"
sketch9.AttachmentOffset = App.Placement(Vector(0, 0, -1810), App.Rotation())
sketch9.addGeometry(Part.LineSegment(Vector(288, 198, 0), Vector(241, 202, 0)), False)
sketch9.addGeometry(Part.LineSegment(Vector(241, 202, 0), Vector(241, 164, 0)), False)
sketch9.addGeometry(Part.LineSegment(Vector(241, 164, 0), Vector(288, 168, 0)), False)
sketch9.addGeometry(Part.ArcOfCircle(Part.Circle(Vector(286, 183, 0), Vector(0, 0, 1), 15), math.radians(-85), math.radians(85)), False)
sketch9.addGeometry(Part.Circle(Vector(286, 183, 0), Vector(0, 0, 1), 5), False)
sketch9.addConstraint(Sketcher.Constraint("Coincident", 0, 2, 1, 1))
sketch9.addConstraint(Sketcher.Constraint("Coincident", 1, 2, 2, 1))
sketch9.addConstraint(Sketcher.Constraint("Tangent", 2, 2, 3, 1))
sketch9.addConstraint(Sketcher.Constraint("Tangent", 3, 2, 0, 1))
sketch9.addConstraint(Sketcher.Constraint("Vertical", 1))
sketch9.addConstraint(Sketcher.Constraint("Coincident", 4, 3, 3, 3))
sketch9.addConstraint(Sketcher.Constraint("Vertical", 2, 2, 3, 2))
sketch9.addConstraint(Sketcher.Constraint("Diameter", 4, 10.0))
sketch9.addConstraint(Sketcher.Constraint("Radius", 3, 15.0))
sketch9.addConstraint(Sketcher.Constraint("DistanceY", 1, 2, 1, 1, 38.0))
sketch9.addConstraint(Sketcher.Constraint("DistanceX", 0, 2, 3, 3, 45.0))
sketch9.addConstraint(Sketcher.Constraint("DistanceX", -1, 1, 3, 3, 286.3))
sketch9.addConstraint(Sketcher.Constraint("DistanceY", -1, 1, 3, 3, 182.577968))
pad9 = body9.newObject("PartDesign::Pad", "Pad008")
pad9.Profile = sketch9
pad9.Length = 5
pad9.Reversed = True
body10 = doc.addObject("PartDesign::Body", "Body009")
doc.recompute()

mirroring = doc.addObject("Part::Mirroring", "Mirroring")
mirroring.Source = body
mirroring.Base = Vector(0, 0, 0)
mirroring.Normal = Vector(1, 0, 0)
body10.BaseFeature = mirroring
doc.recompute()
body11 = doc.addObject("PartDesign::Body", "Body010")
doc.recompute()

mirroring2 = doc.addObject("Part::Mirroring", "Mirroring001")
mirroring2.Source = body2
mirroring2.Base = Vector(0, 0, 0)
mirroring2.Normal = Vector(1, 0, 0)
body11.BaseFeature = mirroring2
doc.recompute()
body12 = doc.addObject("PartDesign::Body", "Body011")
doc.recompute()

mirroring3 = doc.addObject("Part::Mirroring", "Mirroring002")
mirroring3.Source = body4
mirroring3.Base = Vector(0, 0, 0)
mirroring3.Normal = Vector(1, 0, 0)
body12.BaseFeature = mirroring3
doc.recompute()
body13 = doc.addObject("PartDesign::Body", "Body012")
doc.recompute()

mirroring4 = doc.addObject("Part::Mirroring", "Mirroring003")
mirroring4.Source = body3
mirroring4.Base = Vector(0, 0, 0)
mirroring4.Normal = Vector(1, 0, 0)
body13.BaseFeature = mirroring4
doc.recompute()
body14 = doc.addObject("PartDesign::Body", "Body013")
doc.recompute()

mirroring5 = doc.addObject("Part::Mirroring", "Mirroring004")
mirroring5.Source = body5
mirroring5.Base = Vector(0, 0, 0)
mirroring5.Normal = Vector(1, 0, 0)
body14.BaseFeature = mirroring5
doc.recompute()
body15 = doc.addObject("PartDesign::Body", "Body014")
doc.recompute()

mirroring6 = doc.addObject("Part::Mirroring", "Mirroring005")
mirroring6.Source = body6
mirroring6.Base = Vector(0, 0, 0)
mirroring6.Normal = Vector(1, 0, 0)
body15.BaseFeature = mirroring6
doc.recompute()
body16 = doc.addObject("PartDesign::Body", "Body015")
doc.recompute()

mirroring7 = doc.addObject("Part::Mirroring", "Mirroring006")
mirroring7.Source = body7
mirroring7.Base = Vector(0, 0, 0)
mirroring7.Normal = Vector(1, 0, 0)
body16.BaseFeature = mirroring7
doc.recompute()
body17 = doc.addObject("PartDesign::Body", "Body016")
doc.recompute()

mirroring8 = doc.addObject("Part::Mirroring", "Mirroring007")
mirroring8.Source = body8
mirroring8.Base = Vector(0, 0, 0)
mirroring8.Normal = Vector(1, 0, 0)
body17.BaseFeature = mirroring8
doc.recompute()
body18 = doc.addObject("PartDesign::Body", "Body017")
doc.recompute()

mirroring9 = doc.addObject("Part::Mirroring", "Mirroring008")
mirroring9.Source = body9
mirroring9.Base = Vector(0, 0, 0)
mirroring9.Normal = Vector(1, 0, 0)
body18.BaseFeature = mirroring9
doc.recompute()

doc.recompute()
